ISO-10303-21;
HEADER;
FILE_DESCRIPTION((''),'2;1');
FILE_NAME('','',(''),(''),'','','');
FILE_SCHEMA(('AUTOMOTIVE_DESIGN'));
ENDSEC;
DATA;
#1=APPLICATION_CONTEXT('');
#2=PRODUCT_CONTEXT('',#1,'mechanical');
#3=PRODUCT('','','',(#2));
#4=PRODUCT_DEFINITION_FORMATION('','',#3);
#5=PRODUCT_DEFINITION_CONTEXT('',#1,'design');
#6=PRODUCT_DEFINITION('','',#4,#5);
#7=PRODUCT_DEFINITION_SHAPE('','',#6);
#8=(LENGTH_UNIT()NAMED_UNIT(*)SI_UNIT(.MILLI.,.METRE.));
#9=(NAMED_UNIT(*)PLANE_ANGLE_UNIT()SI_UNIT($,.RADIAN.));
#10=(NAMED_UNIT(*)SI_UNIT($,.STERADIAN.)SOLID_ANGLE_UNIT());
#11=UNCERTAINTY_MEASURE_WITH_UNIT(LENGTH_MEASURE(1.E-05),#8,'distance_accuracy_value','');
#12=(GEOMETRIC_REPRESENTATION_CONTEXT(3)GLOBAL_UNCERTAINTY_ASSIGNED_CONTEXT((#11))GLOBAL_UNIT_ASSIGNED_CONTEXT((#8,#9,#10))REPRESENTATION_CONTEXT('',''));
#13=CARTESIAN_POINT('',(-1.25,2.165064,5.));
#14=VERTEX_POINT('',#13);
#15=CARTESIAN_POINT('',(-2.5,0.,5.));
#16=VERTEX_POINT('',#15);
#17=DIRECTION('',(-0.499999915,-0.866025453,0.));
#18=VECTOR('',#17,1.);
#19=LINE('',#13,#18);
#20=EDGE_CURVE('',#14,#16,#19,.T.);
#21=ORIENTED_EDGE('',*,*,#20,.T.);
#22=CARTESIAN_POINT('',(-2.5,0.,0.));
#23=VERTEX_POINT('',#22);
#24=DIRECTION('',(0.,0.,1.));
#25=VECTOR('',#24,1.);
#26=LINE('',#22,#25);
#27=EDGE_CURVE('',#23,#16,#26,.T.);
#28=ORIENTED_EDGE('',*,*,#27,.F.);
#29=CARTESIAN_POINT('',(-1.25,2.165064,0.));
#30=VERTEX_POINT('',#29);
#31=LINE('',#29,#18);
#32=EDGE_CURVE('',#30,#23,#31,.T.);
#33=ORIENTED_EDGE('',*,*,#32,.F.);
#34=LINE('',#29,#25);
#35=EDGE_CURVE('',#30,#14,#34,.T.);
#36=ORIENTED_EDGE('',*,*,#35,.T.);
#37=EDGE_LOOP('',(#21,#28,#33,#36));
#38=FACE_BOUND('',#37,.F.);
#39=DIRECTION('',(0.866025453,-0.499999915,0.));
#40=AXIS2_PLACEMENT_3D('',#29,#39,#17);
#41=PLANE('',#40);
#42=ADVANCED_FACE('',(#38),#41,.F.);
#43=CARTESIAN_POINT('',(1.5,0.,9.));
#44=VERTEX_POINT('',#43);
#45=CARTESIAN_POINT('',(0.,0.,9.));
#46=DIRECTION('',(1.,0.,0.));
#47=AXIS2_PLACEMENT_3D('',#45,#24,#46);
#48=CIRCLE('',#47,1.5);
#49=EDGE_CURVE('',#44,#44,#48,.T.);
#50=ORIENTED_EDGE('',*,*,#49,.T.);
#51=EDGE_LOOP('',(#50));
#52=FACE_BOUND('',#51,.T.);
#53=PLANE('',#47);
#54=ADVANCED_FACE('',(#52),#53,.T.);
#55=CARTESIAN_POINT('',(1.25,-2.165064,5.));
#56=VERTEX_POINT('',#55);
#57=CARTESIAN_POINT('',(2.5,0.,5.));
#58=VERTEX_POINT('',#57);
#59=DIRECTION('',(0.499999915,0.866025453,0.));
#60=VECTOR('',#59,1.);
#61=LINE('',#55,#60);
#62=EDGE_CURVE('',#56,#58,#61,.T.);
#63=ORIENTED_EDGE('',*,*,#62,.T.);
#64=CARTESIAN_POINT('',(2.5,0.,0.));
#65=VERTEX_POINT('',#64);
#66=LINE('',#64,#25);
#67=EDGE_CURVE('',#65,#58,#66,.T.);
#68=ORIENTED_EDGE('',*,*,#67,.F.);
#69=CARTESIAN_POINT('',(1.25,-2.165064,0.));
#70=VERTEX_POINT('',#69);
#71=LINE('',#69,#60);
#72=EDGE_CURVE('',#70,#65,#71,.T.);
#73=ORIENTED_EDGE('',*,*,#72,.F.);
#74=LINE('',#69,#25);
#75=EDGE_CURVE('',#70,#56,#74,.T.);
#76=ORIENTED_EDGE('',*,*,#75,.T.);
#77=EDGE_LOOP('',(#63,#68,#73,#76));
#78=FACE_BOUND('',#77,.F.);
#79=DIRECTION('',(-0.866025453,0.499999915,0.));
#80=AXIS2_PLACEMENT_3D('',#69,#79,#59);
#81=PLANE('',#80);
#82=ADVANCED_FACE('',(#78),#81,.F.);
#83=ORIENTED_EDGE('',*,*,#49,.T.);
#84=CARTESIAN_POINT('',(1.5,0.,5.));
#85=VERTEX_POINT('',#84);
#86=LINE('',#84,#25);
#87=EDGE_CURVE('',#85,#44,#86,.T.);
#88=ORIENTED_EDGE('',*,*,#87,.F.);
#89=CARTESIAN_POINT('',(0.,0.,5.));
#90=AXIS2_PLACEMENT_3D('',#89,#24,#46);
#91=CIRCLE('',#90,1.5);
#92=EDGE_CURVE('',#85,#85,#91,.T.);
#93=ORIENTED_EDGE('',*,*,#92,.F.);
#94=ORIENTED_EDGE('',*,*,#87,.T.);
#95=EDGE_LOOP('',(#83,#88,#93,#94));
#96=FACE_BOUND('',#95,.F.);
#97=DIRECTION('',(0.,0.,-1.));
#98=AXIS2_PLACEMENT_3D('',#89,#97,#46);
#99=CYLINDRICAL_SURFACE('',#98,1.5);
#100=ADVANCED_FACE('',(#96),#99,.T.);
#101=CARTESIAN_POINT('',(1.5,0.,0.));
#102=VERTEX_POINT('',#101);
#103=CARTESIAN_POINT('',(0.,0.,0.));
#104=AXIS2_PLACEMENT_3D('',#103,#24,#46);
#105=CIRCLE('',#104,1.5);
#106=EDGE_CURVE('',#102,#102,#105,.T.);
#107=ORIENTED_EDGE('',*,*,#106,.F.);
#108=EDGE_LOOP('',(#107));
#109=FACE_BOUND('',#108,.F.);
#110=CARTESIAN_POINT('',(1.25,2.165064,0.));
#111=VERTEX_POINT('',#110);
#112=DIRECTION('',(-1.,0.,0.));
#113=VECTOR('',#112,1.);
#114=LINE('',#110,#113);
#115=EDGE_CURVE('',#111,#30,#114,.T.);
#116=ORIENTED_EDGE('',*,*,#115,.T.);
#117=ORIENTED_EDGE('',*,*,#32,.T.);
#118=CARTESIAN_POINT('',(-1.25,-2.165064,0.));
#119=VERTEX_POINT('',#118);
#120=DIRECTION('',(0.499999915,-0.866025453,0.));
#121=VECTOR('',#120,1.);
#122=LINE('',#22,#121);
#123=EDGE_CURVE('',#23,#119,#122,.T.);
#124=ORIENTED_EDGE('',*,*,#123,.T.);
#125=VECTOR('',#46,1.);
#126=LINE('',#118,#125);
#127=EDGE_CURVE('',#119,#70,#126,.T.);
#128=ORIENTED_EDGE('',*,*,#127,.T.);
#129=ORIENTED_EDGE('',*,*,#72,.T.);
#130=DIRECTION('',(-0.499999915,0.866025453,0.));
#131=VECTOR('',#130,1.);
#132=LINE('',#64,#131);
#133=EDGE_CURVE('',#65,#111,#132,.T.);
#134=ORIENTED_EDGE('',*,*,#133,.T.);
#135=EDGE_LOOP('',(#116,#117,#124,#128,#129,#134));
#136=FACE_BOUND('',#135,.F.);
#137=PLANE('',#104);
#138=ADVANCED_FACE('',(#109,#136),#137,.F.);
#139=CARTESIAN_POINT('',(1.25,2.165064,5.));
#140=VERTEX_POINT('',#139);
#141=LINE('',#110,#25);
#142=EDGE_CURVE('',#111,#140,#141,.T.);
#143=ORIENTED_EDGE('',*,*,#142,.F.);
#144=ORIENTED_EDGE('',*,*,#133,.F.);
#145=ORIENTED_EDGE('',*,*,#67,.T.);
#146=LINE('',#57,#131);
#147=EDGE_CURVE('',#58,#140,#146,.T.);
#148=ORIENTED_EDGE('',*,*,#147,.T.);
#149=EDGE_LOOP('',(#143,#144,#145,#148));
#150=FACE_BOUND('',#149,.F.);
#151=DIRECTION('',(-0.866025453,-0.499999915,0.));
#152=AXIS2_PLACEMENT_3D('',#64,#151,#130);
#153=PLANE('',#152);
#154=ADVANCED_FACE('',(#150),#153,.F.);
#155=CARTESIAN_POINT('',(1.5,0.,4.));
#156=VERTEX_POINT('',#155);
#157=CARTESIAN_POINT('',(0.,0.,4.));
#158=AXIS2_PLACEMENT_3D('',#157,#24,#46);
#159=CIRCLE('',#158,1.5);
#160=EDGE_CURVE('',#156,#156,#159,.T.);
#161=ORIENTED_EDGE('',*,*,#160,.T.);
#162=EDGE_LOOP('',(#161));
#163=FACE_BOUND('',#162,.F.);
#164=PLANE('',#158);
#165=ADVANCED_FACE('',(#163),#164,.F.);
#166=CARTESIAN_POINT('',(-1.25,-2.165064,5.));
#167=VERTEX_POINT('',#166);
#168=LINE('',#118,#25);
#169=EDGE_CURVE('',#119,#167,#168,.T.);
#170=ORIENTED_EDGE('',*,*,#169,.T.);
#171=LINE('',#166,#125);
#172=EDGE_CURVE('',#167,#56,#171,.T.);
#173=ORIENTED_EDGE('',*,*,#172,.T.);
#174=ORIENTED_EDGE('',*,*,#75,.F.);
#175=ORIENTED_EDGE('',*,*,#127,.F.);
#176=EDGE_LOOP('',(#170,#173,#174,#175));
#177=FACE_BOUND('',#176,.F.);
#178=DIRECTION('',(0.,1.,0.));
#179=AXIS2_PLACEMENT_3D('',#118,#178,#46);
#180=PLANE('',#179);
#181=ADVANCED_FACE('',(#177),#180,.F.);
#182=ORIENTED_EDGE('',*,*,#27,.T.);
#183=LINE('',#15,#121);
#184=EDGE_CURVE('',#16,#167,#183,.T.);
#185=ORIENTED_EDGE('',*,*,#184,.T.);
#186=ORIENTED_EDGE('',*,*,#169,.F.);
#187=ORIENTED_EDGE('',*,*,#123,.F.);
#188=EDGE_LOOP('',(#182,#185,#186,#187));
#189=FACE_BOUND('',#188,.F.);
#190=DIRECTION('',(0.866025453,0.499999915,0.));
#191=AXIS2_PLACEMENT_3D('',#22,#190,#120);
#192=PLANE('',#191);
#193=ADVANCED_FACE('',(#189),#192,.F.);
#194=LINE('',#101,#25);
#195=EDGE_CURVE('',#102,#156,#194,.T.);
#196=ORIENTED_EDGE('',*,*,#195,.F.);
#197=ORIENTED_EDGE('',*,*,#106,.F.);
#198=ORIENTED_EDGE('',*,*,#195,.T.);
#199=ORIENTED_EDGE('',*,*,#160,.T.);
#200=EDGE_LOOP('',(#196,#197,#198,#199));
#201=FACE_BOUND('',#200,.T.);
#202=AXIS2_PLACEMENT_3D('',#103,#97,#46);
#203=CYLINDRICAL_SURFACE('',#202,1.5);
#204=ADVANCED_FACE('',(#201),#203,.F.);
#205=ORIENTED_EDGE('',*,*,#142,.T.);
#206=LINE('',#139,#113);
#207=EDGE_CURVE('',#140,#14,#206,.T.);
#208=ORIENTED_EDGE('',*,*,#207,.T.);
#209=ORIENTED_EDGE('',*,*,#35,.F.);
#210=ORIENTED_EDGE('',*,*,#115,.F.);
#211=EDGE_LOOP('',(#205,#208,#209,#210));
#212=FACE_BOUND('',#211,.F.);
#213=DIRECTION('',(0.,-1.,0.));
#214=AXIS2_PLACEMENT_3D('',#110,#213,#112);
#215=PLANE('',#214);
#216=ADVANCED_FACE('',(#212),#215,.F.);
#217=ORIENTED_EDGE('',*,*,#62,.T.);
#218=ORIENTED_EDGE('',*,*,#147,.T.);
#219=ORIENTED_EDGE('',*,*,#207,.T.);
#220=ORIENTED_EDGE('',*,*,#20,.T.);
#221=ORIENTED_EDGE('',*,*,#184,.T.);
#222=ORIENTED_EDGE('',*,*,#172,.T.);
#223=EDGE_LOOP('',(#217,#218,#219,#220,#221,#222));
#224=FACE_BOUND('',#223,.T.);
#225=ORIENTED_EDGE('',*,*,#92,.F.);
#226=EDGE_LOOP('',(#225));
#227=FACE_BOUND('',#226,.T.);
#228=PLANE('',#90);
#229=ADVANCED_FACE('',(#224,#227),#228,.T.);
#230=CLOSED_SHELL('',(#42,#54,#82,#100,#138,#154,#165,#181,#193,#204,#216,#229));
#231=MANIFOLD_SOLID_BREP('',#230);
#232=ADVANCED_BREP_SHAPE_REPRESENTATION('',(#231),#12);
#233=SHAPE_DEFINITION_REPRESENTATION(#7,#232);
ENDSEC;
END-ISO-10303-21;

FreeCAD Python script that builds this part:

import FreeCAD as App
import Part
import Sketcher

V = App.Vector
Q = App.Units.Quantity

doc = App.newDocument("Part")
body = doc.addObject("PartDesign::Body", "Body")

sketch1 = body.newObject("Sketcher::SketchObject", "Sketch")
sketch1.AttachmentSupport = (doc.getObject("XY_Plane"), [""])
sketch1.MapMode = "FlatFace"
sketch1.addGeometry([
    Part.LineSegment(V(1.2, -2.2, 0), V(2.5, 0, 0)),
    Part.LineSegment(V(2.5, 0, 0), V(1.2, 2.2, 0)),
    Part.LineSegment(V(1.2, 2.2, 0), V(-1.2, 2.2, 0)),
    Part.LineSegment(V(-1.2, 2.2, 0), V(-2.5, 0, 0)),
    Part.LineSegment(V(-2.5, 0, 0), V(-1.2, -2.2, 0)),
    Part.LineSegment(V(-1.2, -2.2, 0), V(1.2, -2.2, 0)),
], False)
sketch1.addConstraint([
    Sketcher.Constraint("Coincident", 0, 2, 1, 1),
    Sketcher.Constraint("Coincident", 1, 2, 2, 1),
    Sketcher.Constraint("Coincident", 2, 2, 3, 1),
    Sketcher.Constraint("Coincident", 3, 2, 4, 1),
    Sketcher.Constraint("Coincident", 4, 2, 5, 1),
    Sketcher.Constraint("Coincident", 5, 2, 0, 1),
    Sketcher.Constraint("Horizontal", 2),
    Sketcher.Constraint("Horizontal", 5),
    Sketcher.Constraint("Symmetric", 0, 2, 3, 2, -1, 1),
    Sketcher.Constraint("Symmetric", 1, 2, 4, 2, -1, 1),
    Sketcher.Constraint("PointOnObject", 0, 2, -1),
    Sketcher.Constraint("Parallel", 0, 3),
    Sketcher.Constraint("Vertical", 2, 2, 4, 2),
    Sketcher.Constraint("Angle", 0, Q("60.000006 deg")),
    Sketcher.Constraint("DistanceX", 2, 2, 2, 1, 2.5),
    Sketcher.Constraint("DistanceX", 3, 2, 0, 2, 5.0),
])
pad1 = body.newObject("PartDesign::Pad", "Pad")
pad1.Profile = sketch1
pad1.Length = 5

sketch2 = body.newObject("Sketcher::SketchObject", "Sketch001")
sketch2.AttachmentSupport = (doc.getObject("XY_Plane"), [""])
sketch2.MapMode = "FlatFace"
sketch2.AttachmentOffset = App.Placement(V(0, 0, 5), App.Rotation())
sketch2.addGeometry(Part.Circle(V(0, 0, 0), V(0, 0, 1), 1.5), False)
sketch2.addConstraint([
    Sketcher.Constraint("Coincident", 0, 3, -1, 1),
    Sketcher.Constraint("Diameter", 0, 3.0),
])
pad2 = body.newObject("PartDesign::Pad", "Pad001")
pad2.Profile = sketch2
pad2.Length = 4

sketch3 = body.newObject("Sketcher::SketchObject", "Sketch002")
sketch3.AttachmentSupport = (doc.getObject("XY_Plane"), [""])
sketch3.MapMode = "FlatFace"
sketch3.addGeometry(Part.Circle(V(0, 0, 0), V(0, 0, 1), 1.5), False)
sketch3.addConstraint([
    Sketcher.Constraint("Coincident", 0, 3, -1, 1),
    Sketcher.Constraint("Diameter", 0, 3.0),
])
pocket1 = body.newObject("PartDesign::Pocket", "Pocket")
pocket1.Profile = sketch3
pocket1.Length = 4
pocket1.Reversed = True

doc.recompute()
